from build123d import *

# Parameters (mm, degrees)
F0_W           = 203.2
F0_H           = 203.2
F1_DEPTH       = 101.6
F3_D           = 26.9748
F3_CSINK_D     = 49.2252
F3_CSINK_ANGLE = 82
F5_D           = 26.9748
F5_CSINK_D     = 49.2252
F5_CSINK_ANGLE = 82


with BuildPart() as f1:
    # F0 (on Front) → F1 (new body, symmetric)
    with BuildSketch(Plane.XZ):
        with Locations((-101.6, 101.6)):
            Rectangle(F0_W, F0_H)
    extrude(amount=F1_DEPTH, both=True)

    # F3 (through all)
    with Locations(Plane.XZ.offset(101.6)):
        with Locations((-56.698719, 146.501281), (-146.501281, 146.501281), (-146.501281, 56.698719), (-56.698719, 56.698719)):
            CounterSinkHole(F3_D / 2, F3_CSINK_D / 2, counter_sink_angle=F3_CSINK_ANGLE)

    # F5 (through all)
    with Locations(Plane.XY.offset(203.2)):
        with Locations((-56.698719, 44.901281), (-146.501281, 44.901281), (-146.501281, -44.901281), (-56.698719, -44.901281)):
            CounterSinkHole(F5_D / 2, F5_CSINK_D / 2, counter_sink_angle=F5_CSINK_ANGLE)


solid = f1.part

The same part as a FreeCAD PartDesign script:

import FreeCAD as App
import Part
import Sketcher
from FreeCAD import Vector
Q = App.Units.Quantity

doc = App.newDocument("Part")
body = doc.addObject("PartDesign::Body", "Body")

sketch1 = body.newObject("Sketcher::SketchObject", "Sketch")
sketch1.AttachmentSupport = (doc.getObject("XZ_Plane"), [""])
sketch1.MapMode = "FlatFace"
sketch1.addGeometry(Part.LineSegment(Vector(-203, 203, 0), Vector(-203, 0, 0)), False)
sketch1.addGeometry(Part.LineSegment(Vector(-203, 0, 0), Vector(0, 0, 0)), False)
sketch1.addGeometry(Part.LineSegment(Vector(0, 0, 0), Vector(0, 203, 0)), False)
sketch1.addGeometry(Part.LineSegment(Vector(0, 203, 0), Vector(-203, 203, 0)), False)
sketch1.addConstraint(Sketcher.Constraint("Coincident", 0, 2, 1, 1))
sketch1.addConstraint(Sketcher.Constraint("Coincident", 1, 2, 2, 1))
sketch1.addConstraint(Sketcher.Constraint("Coincident", 2, 2, 3, 1))
sketch1.addConstraint(Sketcher.Constraint("Coincident", 3, 2, 0, 1))
sketch1.addConstraint(Sketcher.Constraint("Vertical", 0))
sketch1.addConstraint(Sketcher.Constraint("Horizontal", 1))
sketch1.addConstraint(Sketcher.Constraint("Vertical", 2))
sketch1.addConstraint(Sketcher.Constraint("Horizontal", 3))
sketch1.addConstraint(Sketcher.Constraint("Coincident", 1, 2, -1, 1))
sketch1.addConstraint(Sketcher.Constraint("Equal", 3, 0))
sketch1.addConstraint(Sketcher.Constraint("DistanceX", 1, 1, 1, 2, Q("8 in")))
pad1 = body.newObject("PartDesign::Pad", "Pad")
pad1.Profile = sketch1
pad1.Length = Q("8 in")
pad1.Midplane = True

sketch2 = body.newObject("Sketcher::SketchObject", "Sketch001")
sketch2.AttachmentSupport = (doc.getObject("XZ_Plane"), [""])
sketch2.MapMode = "FlatFace"
sketch2.AttachmentOffset = App.Placement(Vector(0, 0, 4 * 25.4), App.Rotation())
sketch2.addGeometry(Part.Circle(Vector(-57, 147, 0), Vector(0, 0, 1), 13), False)
sketch2.addGeometry(Part.Circle(Vector(-147, 147, 0), Vector(0, 0, 1), 13), False)
sketch2.addGeometry(Part.Circle(Vector(-147, 57, 0), Vector(0, 0, 1), 13), False)
sketch2.addGeometry(Part.Circle(Vector(-57, 57, 0), Vector(0, 0, 1), 13), False)
sketch2.addConstraint(Sketcher.Constraint("Equal", 0, 1))
sketch2.addConstraint(Sketcher.Constraint("Equal", 1, 2))
sketch2.addConstraint(Sketcher.Constraint("Equal", 2, 3))
sketch2.addConstraint(Sketcher.Constraint("Horizontal", 0, 3, 1, 3))
sketch2.addConstraint(Sketcher.Constraint("Horizontal", 2, 3, 3, 3))
sketch2.addConstraint(Sketcher.Constraint("Vertical", 1, 3, 2, 3))
sketch2.addConstraint(Sketcher.Constraint("Vertical", 0, 3, 3, 3))
sketch2.addConstraint(Sketcher.Constraint("Diameter", 0, Q("1.062 in")))
sketch2.addConstraint(Sketcher.Constraint("DistanceX", 0, 3, -1, 1, Q("56.698719 mm")))
sketch2.addConstraint(Sketcher.Constraint("DistanceY", -1, 1, 0, 3, Q("146.501281 mm")))
sketch2.addConstraint(Sketcher.Constraint("DistanceX", 1, 3, -1, 1, Q("146.501281 mm")))
sketch2.addConstraint(Sketcher.Constraint("DistanceY", -1, 1, 2, 3, Q("56.698719 mm")))
doc.recompute()
hole = body.newObject("PartDesign::Hole", "Hole")
hole.Profile = sketch2
hole.ThreadType = "None"
hole.Diameter = Q("1.062 in")
hole.DepthType = "ThroughAll"
hole.HoleCutType = "Countersink"
hole.HoleCutDiameter = Q("1.938 in")
hole.HoleCutCountersinkAngle = 82

sketch3 = body.newObject("Sketcher::SketchObject", "Sketch002")
sketch3.AttachmentSupport = (doc.getObject("XY_Plane"), [""])
sketch3.MapMode = "FlatFace"
sketch3.AttachmentOffset = App.Placement(Vector(0, 0, 8 * 25.4), App.Rotation())
sketch3.addGeometry(Part.Circle(Vector(-57, 45, 0), Vector(0, 0, 1), 13), False)
sketch3.addGeometry(Part.Circle(Vector(-147, 45, 0), Vector(0, 0, 1), 13), False)
sketch3.addGeometry(Part.Circle(Vector(-147, -45, 0), Vector(0, 0, 1), 13), False)
sketch3.addGeometry(Part.Circle(Vector(-57, -45, 0), Vector(0, 0, 1), 13), False)
sketch3.addConstraint(Sketcher.Constraint("Equal", 0, 1))
sketch3.addConstraint(Sketcher.Constraint("Equal", 1, 2))
sketch3.addConstraint(Sketcher.Constraint("Equal", 2, 3))
sketch3.addConstraint(Sketcher.Constraint("Symmetric", 1, 3, 2, 3, -1))
sketch3.addConstraint(Sketcher.Constraint("Symmetric", 0, 3, 3, 3, -1))
sketch3.addConstraint(Sketcher.Constraint("Horizontal", 0, 3, 1, 3))
sketch3.addConstraint(Sketcher.Constraint("Diameter", 0, Q("1.062 in")))
sketch3.addConstraint(Sketcher.Constraint("DistanceX", 0, 3, -1, 1, Q("56.698719 mm")))
sketch3.addConstraint(Sketcher.Constraint("DistanceY", -1, 1, 0, 3, Q("44.901281 mm")))
sketch3.addConstraint(Sketcher.Constraint("DistanceX", 1, 3, -1, 1, Q("146.501281 mm")))
doc.recompute()
hole2 = body.newObject("PartDesign::Hole", "Hole001")
hole2.Profile = sketch3
hole2.ThreadType = "None"
hole2.Diameter = Q("1.062 in")
hole2.DepthType = "ThroughAll"
hole2.HoleCutType = "Countersink"
hole2.HoleCutDiameter = Q("1.938 in")
hole2.HoleCutCountersinkAngle = 82

doc.recompute()
